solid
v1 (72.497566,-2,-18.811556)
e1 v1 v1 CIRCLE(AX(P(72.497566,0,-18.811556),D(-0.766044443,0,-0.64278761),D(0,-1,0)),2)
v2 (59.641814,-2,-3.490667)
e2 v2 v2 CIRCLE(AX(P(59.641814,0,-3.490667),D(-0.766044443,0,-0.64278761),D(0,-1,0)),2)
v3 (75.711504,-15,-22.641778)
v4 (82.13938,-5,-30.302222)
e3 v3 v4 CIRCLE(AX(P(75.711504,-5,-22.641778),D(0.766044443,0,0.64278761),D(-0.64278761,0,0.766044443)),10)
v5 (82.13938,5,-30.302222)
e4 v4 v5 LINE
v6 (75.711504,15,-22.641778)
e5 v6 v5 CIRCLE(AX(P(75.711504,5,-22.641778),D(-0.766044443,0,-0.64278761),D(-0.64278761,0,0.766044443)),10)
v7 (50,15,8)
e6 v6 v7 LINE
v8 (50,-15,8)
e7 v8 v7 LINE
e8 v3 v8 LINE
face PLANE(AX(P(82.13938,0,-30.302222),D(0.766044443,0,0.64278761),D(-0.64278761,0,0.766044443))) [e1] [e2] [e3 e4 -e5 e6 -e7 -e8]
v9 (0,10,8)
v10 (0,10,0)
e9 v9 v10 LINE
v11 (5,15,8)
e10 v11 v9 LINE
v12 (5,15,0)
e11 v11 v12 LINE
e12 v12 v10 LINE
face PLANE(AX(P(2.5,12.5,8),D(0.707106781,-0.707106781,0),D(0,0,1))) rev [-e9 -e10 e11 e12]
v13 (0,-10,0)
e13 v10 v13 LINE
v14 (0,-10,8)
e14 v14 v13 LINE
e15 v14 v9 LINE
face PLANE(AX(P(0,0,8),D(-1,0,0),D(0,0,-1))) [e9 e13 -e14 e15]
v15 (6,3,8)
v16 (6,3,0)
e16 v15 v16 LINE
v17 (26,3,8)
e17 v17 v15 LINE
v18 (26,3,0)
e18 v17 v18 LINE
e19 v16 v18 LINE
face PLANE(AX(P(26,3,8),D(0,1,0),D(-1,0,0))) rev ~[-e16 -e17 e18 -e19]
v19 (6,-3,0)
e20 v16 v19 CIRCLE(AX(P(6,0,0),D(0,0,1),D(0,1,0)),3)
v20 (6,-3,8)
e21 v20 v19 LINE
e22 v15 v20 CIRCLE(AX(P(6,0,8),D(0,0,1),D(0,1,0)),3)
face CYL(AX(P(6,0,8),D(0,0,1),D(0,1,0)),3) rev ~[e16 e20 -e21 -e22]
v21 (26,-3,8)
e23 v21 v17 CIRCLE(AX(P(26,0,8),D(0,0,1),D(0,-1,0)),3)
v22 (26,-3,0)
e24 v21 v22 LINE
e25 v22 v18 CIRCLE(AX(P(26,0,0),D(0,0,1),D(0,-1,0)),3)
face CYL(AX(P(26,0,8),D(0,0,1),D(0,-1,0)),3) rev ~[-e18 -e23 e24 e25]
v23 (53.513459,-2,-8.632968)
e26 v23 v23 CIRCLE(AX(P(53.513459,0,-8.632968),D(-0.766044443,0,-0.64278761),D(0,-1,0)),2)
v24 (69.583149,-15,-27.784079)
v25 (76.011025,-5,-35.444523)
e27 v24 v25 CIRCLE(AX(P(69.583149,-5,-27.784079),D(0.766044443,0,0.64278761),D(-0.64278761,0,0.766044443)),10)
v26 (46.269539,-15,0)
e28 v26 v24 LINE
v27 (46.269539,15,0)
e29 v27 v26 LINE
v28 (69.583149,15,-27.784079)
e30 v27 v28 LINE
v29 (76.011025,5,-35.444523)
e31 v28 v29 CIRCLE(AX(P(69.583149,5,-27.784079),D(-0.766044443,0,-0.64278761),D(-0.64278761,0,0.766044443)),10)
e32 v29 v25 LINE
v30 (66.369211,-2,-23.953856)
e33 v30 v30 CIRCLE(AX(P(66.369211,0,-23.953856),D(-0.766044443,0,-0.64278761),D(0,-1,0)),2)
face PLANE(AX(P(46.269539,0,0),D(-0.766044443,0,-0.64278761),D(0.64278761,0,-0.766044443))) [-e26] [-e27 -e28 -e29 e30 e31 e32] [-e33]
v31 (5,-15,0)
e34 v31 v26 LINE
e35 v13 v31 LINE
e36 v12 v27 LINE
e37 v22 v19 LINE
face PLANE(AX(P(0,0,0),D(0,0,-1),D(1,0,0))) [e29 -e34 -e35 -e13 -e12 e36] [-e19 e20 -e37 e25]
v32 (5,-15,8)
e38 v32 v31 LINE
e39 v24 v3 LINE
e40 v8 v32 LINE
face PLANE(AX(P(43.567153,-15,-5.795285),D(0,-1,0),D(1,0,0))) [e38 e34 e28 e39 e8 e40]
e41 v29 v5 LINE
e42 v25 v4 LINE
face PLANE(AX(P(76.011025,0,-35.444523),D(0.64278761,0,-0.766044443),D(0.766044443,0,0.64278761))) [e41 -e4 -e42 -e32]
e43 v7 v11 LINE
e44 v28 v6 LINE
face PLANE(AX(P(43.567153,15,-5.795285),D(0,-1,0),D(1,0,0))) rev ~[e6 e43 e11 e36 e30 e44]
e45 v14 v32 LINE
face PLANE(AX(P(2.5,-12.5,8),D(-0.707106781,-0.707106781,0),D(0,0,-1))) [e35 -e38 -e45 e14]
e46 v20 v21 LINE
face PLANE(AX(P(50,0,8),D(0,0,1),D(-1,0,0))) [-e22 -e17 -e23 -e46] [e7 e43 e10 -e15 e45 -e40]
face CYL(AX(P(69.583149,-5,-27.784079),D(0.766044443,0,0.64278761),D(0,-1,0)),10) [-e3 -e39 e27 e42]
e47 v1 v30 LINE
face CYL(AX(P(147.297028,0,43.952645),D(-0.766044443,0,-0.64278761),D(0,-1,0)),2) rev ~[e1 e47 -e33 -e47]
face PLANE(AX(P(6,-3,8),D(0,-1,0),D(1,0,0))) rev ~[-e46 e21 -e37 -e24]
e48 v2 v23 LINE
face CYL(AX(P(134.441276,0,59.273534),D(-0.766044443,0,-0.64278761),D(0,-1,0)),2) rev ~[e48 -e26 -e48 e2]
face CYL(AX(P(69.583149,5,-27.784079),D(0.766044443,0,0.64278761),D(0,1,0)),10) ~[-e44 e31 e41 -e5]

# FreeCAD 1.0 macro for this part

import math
import FreeCAD as App
import Part
import Sketcher
from FreeCAD import Vector
Q = App.Units.Quantity


def edges_at(feature, points):
    """Names of the edges that pass closest to the given points."""
    edges = feature.Shape.Edges
    near = lambda p: min(range(len(edges)), key=lambda i: edges[i].distToShape(Part.Vertex(*p))[0])
    return sorted({f"Edge{near(p) + 1}" for p in points})


def add_polygon(sketch, points):
    """Adds a closed chain of lines whose ends are joined by coincident constraints."""
    first, n = sketch.GeometryCount, len(points)
    for a, b in zip(points, points[1:] + points[:1]):
        sketch.addGeometry(Part.LineSegment(App.Vector(*a, 0), App.Vector(*b, 0)), False)
    for i in range(n):
        sketch.addConstraint(Sketcher.Constraint("Coincident", first + i, 2, first + (i + 1) % n, 1))

doc = App.newDocument("Part")
body = doc.addObject("PartDesign::Body", "Body")

sketch1 = doc.addObject("Sketcher::SketchObject", "Sketch")
body.addObject(sketch1)
sketch1.AttachmentSupport = (doc.XZ_Plane, [""])
sketch1.MapMode = "FlatFace"
add_polygon(sketch1, [(0, 8), (0, 0), (46.269539, 0), (76.011025, -35.444523), (82.13938, -30.302222), (50, 8)])
sketch1.addConstraint(Sketcher.Constraint("Vertical", 0))
sketch1.addConstraint(Sketcher.Constraint("Horizontal", 1))
sketch1.addConstraint(Sketcher.Constraint("Horizontal", 5))
sketch1.addConstraint(Sketcher.Constraint("Coincident", 0, 2, -1, 1))
sketch1.addConstraint(Sketcher.Constraint("Perpendicular", 2, 3))
sketch1.addConstraint(Sketcher.Constraint("Perpendicular", 3, 4))
sketch1.addConstraint(Sketcher.Constraint("DistanceX", 5, 2, 5, 1, Q("50 mm")))
sketch1.addConstraint(Sketcher.Constraint("DistanceY", 0, 2, 0, 1, Q("8 mm")))
sketch1.addConstraint(Sketcher.Constraint("Angle", 2, Q("-50 deg")))
sketch1.addConstraint(Sketcher.Constraint("Distance", 3, Q("8 mm")))
sketch1.addConstraint(Sketcher.Constraint("Distance", 4, Q("50 mm")))
pad1 = doc.addObject("PartDesign::Pad", "Pad")
body.addObject(pad1)
pad1.Profile = sketch1
pad1.Length = 30
pad1.Midplane = True

sketch2 = doc.addObject("Sketcher::SketchObject", "Sketch001")
body.addObject(sketch2)
sketch2.AttachmentSupport = (doc.XY_Plane, [""])
sketch2.MapMode = "FlatFace"
sketch2.AttachmentOffset = App.Placement(Vector(0, 0, 8), App.Rotation())
sketch2.addGeometry(Part.ArcOfCircle(Part.Circle(Vector(6, 0, 0), Vector(0, 0, 1), 3), math.radians(90), math.radians(270)), False)
sketch2.addGeometry(Part.LineSegment(Vector(6, -3, 0), Vector(26, -3, 0)), False)
sketch2.addGeometry(Part.ArcOfCircle(Part.Circle(Vector(26, 0, 0), Vector(0, 0, 1), 3), math.radians(-90), math.radians(90)), False)
sketch2.addGeometry(Part.LineSegment(Vector(26, 3, 0), Vector(6, 3, 0)), False)
sketch2.addConstraint(Sketcher.Constraint("Tangent", 0, 2, 1, 1))
sketch2.addConstraint(Sketcher.Constraint("Tangent", 1, 2, 2, 1))
sketch2.addConstraint(Sketcher.Constraint("Tangent", 2, 2, 3, 1))
sketch2.addConstraint(Sketcher.Constraint("Tangent", 3, 2, 0, 1))
sketch2.addConstraint(Sketcher.Constraint("Horizontal", 1))
sketch2.addConstraint(Sketcher.Constraint("Horizontal", 3))
sketch2.addConstraint(Sketcher.Constraint("PointOnObject", 0, 3, -1))
sketch2.addConstraint(Sketcher.Constraint("Radius", 0, Q("3 mm")))
sketch2.addConstraint(Sketcher.Constraint("DistanceX", 1, 1, 1, 2, Q("20 mm")))
sketch2.addConstraint(Sketcher.Constraint("DistanceX", -1, 1, 0, 3, Q("6 mm")))
pocket1 = doc.addObject("PartDesign::Pocket", "Pocket")
body.addObject(pocket1)
pocket1.Profile = sketch2
pocket1.Type = "ThroughAll"

sketch3 = doc.addObject("Sketcher::SketchObject", "Sketch002")
body.addObject(sketch3)
sketch3.Placement = App.Placement(Vector(33.280435, 0, 27.925601), App.Rotation(Vector(0, 1, 0), Vector(-0.64278761, 0, 0.766044443), Vector(0.766044443, 0, 0.64278761), "ZXY"))
sketch3.addGeometry(Part.Circle(Vector(0, -41.011025, 0), Vector(0, 0, 1), 2), False)
sketch3.addGeometry(Part.Circle(Vector(0, -61.011025, 0), Vector(0, 0, 1), 2), False)
sketch3.addConstraint(Sketcher.Constraint("Equal", 0, 1))
sketch3.addConstraint(Sketcher.Constraint("PointOnObject", 0, 3, -2))
sketch3.addConstraint(Sketcher.Constraint("PointOnObject", 1, 3, -2))
sketch3.addConstraint(Sketcher.Constraint("Diameter", 0, Q("4 mm")))
sketch3.addConstraint(Sketcher.Constraint("DistanceY", 1, 3, 0, 3, Q("20 mm")))
sketch3.addConstraint(Sketcher.Constraint("DistanceY", 0, 3, -1, 1, Q("41.011025 mm")))
doc.recompute()
hole = doc.addObject("PartDesign::Hole", "Hole")
body.addObject(hole)
hole.Profile = sketch3
hole.ThreadType = "None"
hole.Diameter = 4
hole.DepthType = "ThroughAll"
doc.recompute()

fillet = doc.addObject("PartDesign::Fillet", "Fillet")
body.addObject(fillet)
fillet.Base = (hole, edges_at(hole, [(79.075, -15, -32.873), (79.075, 15, -32.873)]))
fillet.Radius = 10
doc.recompute()

chamfer = doc.addObject("PartDesign::Chamfer", "Chamfer")
body.addObject(chamfer)
chamfer.Base = (fillet, edges_at(fillet, [(0, -15, 4), (0, 15, 4)]))
chamfer.Size = 5

doc.recompute()
